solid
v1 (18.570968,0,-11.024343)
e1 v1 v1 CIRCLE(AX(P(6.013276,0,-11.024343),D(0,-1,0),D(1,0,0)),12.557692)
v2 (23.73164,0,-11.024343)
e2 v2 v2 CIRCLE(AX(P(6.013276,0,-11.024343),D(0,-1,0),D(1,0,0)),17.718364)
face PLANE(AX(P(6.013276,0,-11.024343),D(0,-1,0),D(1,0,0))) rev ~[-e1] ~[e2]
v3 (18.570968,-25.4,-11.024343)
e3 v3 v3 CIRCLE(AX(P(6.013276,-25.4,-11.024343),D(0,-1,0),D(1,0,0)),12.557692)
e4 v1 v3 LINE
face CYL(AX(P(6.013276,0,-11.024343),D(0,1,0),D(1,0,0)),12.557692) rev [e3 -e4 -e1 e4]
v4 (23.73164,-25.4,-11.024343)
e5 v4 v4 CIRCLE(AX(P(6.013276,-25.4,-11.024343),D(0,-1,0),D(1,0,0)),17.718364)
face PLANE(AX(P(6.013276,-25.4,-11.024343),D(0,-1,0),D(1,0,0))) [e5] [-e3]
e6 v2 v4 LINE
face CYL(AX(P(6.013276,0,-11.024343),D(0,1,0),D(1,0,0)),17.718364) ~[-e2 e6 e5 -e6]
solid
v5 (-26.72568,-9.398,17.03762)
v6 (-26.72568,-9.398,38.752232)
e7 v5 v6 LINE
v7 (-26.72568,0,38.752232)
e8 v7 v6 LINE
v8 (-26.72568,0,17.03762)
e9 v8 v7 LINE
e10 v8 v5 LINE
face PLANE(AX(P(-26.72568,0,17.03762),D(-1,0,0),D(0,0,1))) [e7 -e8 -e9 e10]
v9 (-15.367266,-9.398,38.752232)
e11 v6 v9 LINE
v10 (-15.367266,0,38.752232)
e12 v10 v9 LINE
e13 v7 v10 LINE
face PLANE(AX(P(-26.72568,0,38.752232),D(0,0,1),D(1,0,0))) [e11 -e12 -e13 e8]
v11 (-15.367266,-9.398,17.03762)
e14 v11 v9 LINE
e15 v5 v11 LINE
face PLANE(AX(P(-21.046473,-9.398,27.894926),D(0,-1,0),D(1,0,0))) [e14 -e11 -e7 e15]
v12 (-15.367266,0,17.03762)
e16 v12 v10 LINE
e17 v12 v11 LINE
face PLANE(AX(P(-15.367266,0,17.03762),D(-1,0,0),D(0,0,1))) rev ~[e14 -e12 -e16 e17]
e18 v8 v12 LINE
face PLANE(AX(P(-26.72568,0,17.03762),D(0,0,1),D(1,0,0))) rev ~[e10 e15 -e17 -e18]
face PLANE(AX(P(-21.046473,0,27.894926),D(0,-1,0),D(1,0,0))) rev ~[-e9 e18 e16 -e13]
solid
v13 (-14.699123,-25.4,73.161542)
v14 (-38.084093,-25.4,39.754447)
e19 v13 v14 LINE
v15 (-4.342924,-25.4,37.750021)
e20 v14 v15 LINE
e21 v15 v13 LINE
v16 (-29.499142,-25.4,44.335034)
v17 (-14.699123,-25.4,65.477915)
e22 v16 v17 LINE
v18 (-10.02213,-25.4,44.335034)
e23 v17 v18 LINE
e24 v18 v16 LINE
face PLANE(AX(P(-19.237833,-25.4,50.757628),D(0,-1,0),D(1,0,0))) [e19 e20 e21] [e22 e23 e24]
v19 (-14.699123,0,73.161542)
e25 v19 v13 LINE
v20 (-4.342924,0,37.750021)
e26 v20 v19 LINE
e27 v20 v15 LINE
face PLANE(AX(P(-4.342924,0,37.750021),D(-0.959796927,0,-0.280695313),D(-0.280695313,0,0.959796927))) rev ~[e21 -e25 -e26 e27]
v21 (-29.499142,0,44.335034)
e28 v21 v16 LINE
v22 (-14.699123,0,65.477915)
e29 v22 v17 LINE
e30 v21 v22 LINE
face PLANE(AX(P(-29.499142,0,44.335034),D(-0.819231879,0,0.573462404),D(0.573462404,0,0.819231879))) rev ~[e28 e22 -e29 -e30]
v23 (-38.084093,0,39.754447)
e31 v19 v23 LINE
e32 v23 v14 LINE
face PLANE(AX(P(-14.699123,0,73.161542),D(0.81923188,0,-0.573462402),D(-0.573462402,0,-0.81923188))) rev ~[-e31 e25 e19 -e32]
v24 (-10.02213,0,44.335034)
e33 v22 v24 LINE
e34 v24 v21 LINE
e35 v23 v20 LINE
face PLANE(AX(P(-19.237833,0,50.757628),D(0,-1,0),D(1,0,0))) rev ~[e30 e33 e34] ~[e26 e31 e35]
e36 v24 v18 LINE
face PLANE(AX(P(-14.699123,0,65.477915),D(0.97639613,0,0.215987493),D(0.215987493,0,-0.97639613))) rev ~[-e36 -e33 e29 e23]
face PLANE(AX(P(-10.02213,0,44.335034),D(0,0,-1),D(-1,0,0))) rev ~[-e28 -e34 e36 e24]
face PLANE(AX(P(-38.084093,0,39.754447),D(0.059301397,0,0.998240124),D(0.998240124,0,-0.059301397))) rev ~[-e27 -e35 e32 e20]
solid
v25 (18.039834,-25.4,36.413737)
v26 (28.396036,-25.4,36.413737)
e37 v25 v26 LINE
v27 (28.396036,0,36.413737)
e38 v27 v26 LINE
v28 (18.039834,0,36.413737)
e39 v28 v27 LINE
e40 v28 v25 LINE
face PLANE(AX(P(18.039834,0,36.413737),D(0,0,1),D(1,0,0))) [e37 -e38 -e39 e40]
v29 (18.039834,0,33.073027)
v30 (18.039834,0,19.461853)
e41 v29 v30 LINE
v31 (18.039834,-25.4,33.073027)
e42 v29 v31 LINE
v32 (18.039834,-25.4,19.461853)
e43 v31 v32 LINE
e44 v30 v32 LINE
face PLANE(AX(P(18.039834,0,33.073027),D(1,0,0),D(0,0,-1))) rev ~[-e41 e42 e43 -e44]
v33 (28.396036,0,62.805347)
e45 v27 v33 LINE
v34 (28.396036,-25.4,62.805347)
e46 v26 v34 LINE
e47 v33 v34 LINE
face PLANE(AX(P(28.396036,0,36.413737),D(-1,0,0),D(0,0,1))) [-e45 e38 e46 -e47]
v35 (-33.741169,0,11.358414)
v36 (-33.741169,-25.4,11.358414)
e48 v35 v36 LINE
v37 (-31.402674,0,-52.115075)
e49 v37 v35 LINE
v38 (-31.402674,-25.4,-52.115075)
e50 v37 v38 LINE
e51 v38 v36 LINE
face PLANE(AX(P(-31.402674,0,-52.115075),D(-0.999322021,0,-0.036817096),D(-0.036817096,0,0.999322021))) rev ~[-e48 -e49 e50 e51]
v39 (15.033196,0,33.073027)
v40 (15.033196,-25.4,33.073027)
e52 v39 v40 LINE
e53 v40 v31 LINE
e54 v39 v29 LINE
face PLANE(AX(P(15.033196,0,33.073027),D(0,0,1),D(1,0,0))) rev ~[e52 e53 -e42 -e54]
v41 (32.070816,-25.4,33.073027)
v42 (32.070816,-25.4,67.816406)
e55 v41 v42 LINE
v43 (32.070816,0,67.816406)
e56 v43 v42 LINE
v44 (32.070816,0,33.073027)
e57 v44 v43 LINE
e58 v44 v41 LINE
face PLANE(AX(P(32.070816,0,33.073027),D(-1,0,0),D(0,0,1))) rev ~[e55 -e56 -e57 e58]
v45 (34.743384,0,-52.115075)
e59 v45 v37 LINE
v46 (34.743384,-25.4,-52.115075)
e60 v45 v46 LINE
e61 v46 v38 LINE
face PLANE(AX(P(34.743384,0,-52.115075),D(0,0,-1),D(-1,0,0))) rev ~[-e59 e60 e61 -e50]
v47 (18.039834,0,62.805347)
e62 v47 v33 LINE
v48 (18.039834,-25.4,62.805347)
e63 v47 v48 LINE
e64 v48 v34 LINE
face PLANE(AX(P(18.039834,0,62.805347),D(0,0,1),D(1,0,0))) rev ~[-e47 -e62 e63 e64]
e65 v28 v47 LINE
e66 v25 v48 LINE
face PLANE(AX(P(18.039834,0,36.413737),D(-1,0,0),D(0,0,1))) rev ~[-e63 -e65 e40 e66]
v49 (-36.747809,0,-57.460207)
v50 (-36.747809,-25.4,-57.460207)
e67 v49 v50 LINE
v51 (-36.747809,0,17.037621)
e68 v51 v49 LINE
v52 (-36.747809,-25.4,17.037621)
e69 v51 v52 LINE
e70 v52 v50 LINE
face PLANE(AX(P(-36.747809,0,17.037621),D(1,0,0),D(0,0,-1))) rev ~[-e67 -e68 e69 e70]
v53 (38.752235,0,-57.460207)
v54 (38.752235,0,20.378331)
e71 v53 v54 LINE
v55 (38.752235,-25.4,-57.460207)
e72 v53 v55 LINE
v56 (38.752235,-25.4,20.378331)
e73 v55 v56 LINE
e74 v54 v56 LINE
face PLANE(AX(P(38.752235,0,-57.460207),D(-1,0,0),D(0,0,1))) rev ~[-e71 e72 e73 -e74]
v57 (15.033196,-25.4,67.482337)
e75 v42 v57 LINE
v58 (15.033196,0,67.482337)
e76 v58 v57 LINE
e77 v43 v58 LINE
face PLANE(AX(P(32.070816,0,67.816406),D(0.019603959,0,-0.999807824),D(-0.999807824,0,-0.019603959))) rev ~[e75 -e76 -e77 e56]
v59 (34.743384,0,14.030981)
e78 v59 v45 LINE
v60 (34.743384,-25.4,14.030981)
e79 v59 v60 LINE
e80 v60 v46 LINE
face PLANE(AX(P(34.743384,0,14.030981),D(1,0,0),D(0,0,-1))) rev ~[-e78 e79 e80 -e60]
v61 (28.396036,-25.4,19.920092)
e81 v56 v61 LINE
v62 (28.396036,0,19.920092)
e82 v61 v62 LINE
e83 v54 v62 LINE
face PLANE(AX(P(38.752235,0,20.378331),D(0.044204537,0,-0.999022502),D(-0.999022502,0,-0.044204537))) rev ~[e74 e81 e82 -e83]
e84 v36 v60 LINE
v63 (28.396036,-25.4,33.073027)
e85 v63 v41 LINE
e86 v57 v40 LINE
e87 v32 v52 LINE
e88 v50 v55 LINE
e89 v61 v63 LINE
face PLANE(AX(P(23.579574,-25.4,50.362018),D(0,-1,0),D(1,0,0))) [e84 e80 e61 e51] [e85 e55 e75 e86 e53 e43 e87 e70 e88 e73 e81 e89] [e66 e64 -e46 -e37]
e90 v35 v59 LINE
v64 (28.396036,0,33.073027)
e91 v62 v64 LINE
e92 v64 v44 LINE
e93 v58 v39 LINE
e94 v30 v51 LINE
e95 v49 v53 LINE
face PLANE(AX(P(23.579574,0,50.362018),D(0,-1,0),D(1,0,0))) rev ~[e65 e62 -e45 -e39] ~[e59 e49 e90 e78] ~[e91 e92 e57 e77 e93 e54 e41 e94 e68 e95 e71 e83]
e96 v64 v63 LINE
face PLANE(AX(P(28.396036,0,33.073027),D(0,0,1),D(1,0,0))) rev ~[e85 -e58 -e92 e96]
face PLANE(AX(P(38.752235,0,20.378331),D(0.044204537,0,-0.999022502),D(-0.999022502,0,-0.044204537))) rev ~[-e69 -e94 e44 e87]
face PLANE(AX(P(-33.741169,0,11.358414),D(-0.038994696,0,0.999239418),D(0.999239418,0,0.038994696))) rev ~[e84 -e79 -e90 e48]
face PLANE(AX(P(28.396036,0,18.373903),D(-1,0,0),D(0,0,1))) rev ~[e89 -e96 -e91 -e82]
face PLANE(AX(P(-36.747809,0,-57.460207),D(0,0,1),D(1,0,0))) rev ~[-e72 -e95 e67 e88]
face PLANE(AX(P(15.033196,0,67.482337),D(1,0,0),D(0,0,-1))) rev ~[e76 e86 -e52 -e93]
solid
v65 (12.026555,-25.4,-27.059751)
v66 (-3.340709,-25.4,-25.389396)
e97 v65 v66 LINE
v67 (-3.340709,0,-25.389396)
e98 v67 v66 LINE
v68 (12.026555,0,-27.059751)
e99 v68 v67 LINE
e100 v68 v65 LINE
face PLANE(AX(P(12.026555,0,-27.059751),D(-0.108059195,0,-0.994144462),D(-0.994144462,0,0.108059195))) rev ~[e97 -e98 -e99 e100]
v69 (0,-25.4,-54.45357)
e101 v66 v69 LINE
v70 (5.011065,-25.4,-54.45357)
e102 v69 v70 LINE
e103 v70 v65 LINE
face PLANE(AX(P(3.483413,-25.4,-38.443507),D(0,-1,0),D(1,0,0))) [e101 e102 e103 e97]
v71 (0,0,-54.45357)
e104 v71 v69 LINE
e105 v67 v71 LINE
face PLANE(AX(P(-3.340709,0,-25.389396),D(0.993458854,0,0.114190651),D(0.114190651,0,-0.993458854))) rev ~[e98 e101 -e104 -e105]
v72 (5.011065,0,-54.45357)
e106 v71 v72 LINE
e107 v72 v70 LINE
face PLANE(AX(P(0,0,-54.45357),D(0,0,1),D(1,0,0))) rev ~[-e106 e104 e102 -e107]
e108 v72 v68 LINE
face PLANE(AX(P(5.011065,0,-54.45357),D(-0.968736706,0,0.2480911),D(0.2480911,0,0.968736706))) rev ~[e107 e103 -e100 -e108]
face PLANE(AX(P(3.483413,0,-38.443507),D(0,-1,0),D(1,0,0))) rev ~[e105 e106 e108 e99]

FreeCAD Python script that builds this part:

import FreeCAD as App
import Part
import Sketcher
from FreeCAD import Vector
Q = App.Units.Quantity


def add_polygon(sketch, points):
    """Adds a closed chain of lines whose ends are joined by coincident constraints."""
    first, n = sketch.GeometryCount, len(points)
    for a, b in zip(points, points[1:] + points[:1]):
        sketch.addGeometry(Part.LineSegment(App.Vector(*a, 0), App.Vector(*b, 0)), False)
    for i in range(n):
        sketch.addConstraint(Sketcher.Constraint("Coincident", first + i, 2, first + (i + 1) % n, 1))

doc = App.newDocument("Part")
body = doc.addObject("PartDesign::Body", "Body")

# Sketch on XZ plane
sketch1 = body.newObject("Sketcher::SketchObject", "Sketch")
sketch1.AttachmentSupport = (doc.getObject("XZ_Plane"), [""])
sketch1.MapMode = "FlatFace"
add_polygon(sketch1, [(39, 20), (-37, 17), (-37, -57), (39, -57)])  # lines 0-3
add_polygon(sketch1, [(35, -52), (-31, -52), (-34, 11), (35, 14)])  # lines 4-7
sketch1.addConstraint([
    Sketcher.Constraint("Vertical", 1),
    Sketcher.Constraint("Horizontal", 2),
    Sketcher.Constraint("Vertical", 3),
    Sketcher.Constraint("Horizontal", 4),
    Sketcher.Constraint("Vertical", 7),
    Sketcher.Constraint("Equal", 4, 7),
    Sketcher.Constraint("DistanceY", 1, 2, 1, 1, 74.497828),
    Sketcher.Constraint("DistanceY", 3, 1, 3, 2, 77.838538),
    Sketcher.Constraint("Distance", 5, 63.516552),
    Sketcher.Constraint("Distance", 6, 68.536681),
    Sketcher.Constraint("DistanceX", 2, 1, 2, 2, 75.500044),
    Sketcher.Constraint("DistanceX", 4, 2, 4, 1, 66.146058),
    Sketcher.Constraint("DistanceX", 0, 2, -1, 1, 36.747809),
    Sketcher.Constraint("DistanceY", -1, 1, 0, 2, 17.037621),
    Sketcher.Constraint("DistanceX", 5, 2, -1, 1, 33.741169),
    Sketcher.Constraint("DistanceY", -1, 1, 6, 2, 14.030981),
])
pad1 = body.newObject("PartDesign::Pad", "Pad")
pad1.Profile = sketch1
pad1.Length = Q("1 in")

# Sketch on XZ plane
sketch2 = body.newObject("Sketcher::SketchObject", "Sketch001")
sketch2.AttachmentSupport = (doc.getObject("XZ_Plane"), [""])
sketch2.MapMode = "FlatFace"
add_polygon(sketch2, [(15, 67.5), (15, 33.1), (18, 33.1), (18, 17.7), (28.4, 18.4), (28.4, 33.1), (32.1, 33.1), (32.1, 67.8)])  # lines 0-7
add_polygon(sketch2, [(28.4, 36.4), (18, 36.4), (18, 62.8), (28.4, 62.8)])  # lines 8-11
sketch2.addConstraint([
    Sketcher.Constraint("Vertical", 0),
    Sketcher.Constraint("Horizontal", 1),
    Sketcher.Constraint("Vertical", 2),
    Sketcher.Constraint("Vertical", 4),
    Sketcher.Constraint("Horizontal", 5),
    Sketcher.Constraint("Vertical", 6),
    Sketcher.Constraint("Horizontal", 8),
    Sketcher.Constraint("Vertical", 9),
    Sketcher.Constraint("Horizontal", 10),
    Sketcher.Constraint("Vertical", 11),
    Sketcher.Constraint("Horizontal", 1, 2, 4, 2),
    Sketcher.Constraint("Vertical", 2, 2, 8, 2),
    Sketcher.Constraint("Vertical", 4, 2, 10, 2),
    Sketcher.Constraint("DistanceX", 5, 1, 5, 2, 3.67478),
    Sketcher.Constraint("DistanceY", 0, 2, 0, 1, 34.40931),
    Sketcher.Constraint("DistanceY", 6, 1, 6, 2, 34.743379),
    Sketcher.Constraint("DistanceY", 9, 1, 9, 2, 26.39161),
    Sketcher.Constraint("DistanceX", 1, 1, 1, 2, 3.006638),
    Sketcher.Constraint("DistanceX", 8, 2, 8, 1, 10.356202),
    Sketcher.Constraint("DistanceY", 2, 2, 2, 1, 15.367264),
    Sketcher.Constraint("DistanceY", 4, 1, 4, 2, 14.699124),
    Sketcher.Constraint("DistanceY", 1, 2, 8, 2, 3.34071),
    Sketcher.Constraint("DistanceX", -1, 1, 0, 2, 15.033196),
    Sketcher.Constraint("DistanceY", -1, 1, 0, 2, 33.073027),
])
pad2 = body.newObject("PartDesign::Pad", "Pad001")
pad2.Profile = sketch2
pad2.Length = Q("1 in")
body2 = doc.addObject("PartDesign::Body", "Body001")

# Sketch on XZ plane
sketch3 = body2.newObject("Sketcher::SketchObject", "Sketch002")
sketch3.AttachmentSupport = (doc.getObject("XZ_Plane001"), [""])
sketch3.MapMode = "FlatFace"
add_polygon(sketch3, [(-15, 73), (-38, 40), (-4, 38)])  # lines 0-2
add_polygon(sketch3, [(-10, 44), (-29, 44), (-15, 65)])  # lines 3-5
sketch3.addConstraint([
    Sketcher.Constraint("Horizontal", 3),
    Sketcher.Constraint("Parallel", 0, 4),
    Sketcher.Constraint("Vertical", 2, 2, 4, 2),
    Sketcher.Constraint("Distance", 5, 21.653999),
    Sketcher.Constraint("DistanceX", 3, 2, 3, 1, 19.477012),
    Sketcher.Constraint("DistanceX", 2, 2, 1, 2, 10.356199),
    Sketcher.Constraint("Distance", 0, 40.778558),
    Sketcher.Constraint("DistanceY", -1, 1, 1, 2, 37.750021),
    Sketcher.Constraint("DistanceY", -1, 1, 2, 2, 73.161542),
    Sketcher.Constraint("DistanceX", 3, 2, -1, 1, 29.499142),
    Sketcher.Constraint("DistanceX", 0, 2, 1, 2, 33.741169),
    Sketcher.Constraint("DistanceY", -1, 1, 3, 2, 44.335034),
])
pad3 = body2.newObject("PartDesign::Pad", "Pad002")
pad3.Profile = sketch3
pad3.Length = Q("1 in")
body3 = doc.addObject("PartDesign::Body", "Body002")

# Sketch on XZ plane
sketch4 = body3.newObject("Sketcher::SketchObject", "Sketch003")
sketch4.AttachmentSupport = (doc.getObject("XZ_Plane002"), [""])
sketch4.MapMode = "FlatFace"
add_polygon(sketch4, [(-27, 39), (-27, 17), (-15, 17), (-15, 39)])  # lines 0-3
sketch4.addConstraint([
    Sketcher.Constraint("Vertical", 0),
    Sketcher.Constraint("Horizontal", 1),
    Sketcher.Constraint("Vertical", 2),
    Sketcher.Constraint("Horizontal", 3),
    Sketcher.Constraint("DistanceY", 0, 2, 0, 1, 21.714611),
    Sketcher.Constraint("DistanceX", 1, 1, 1, 2, 11.358415),
    Sketcher.Constraint("DistanceX", 0, 2, -1, 1, 26.72568),
    Sketcher.Constraint("DistanceY", -1, 1, 0, 2, 17.03762),
])
pad4 = body3.newObject("PartDesign::Pad", "Pad003")
pad4.Profile = sketch4
pad4.Length = Q("0.37 in")
body4 = doc.addObject("PartDesign::Body", "Body003")

# Sketch on XZ plane
sketch5 = body4.newObject("Sketcher::SketchObject", "Sketch004")
sketch5.AttachmentSupport = (doc.getObject("XZ_Plane003"), [""])
sketch5.MapMode = "FlatFace"
sketch5.addGeometry([
    Part.Circle(Vector(6, -11, 0), Vector(0, 0, 1), 18),
    Part.Circle(Vector(6, -11, 0), Vector(0, 0, 1), 13),
], False)
sketch5.addConstraint([
    Sketcher.Constraint("Coincident", 1, 3, 0, 3),
    Sketcher.Constraint("Diameter", 0, 35.436728),
    Sketcher.Constraint("Diameter", 1, 25.115384),
    Sketcher.Constraint("DistanceX", -1, 1, 0, 3, 6.013276),
    Sketcher.Constraint("DistanceY", 0, 3, -1, 1, 11.024343),
])
pad5 = body4.newObject("PartDesign::Pad", "Pad004")
pad5.Profile = sketch5
pad5.Length = Q("1 in")
body5 = doc.addObject("PartDesign::Body", "Body004")

# Sketch on XZ plane
sketch6 = body5.newObject("Sketcher::SketchObject", "Sketch005")
sketch6.AttachmentSupport = (doc.getObject("XZ_Plane004"), [""])
sketch6.MapMode = "FlatFace"
add_polygon(sketch6, [(12, -27), (-3, -25), (0, -54), (5, -54)])  # lines 0-3
sketch6.addConstraint([
    Sketcher.Constraint("Horizontal", 2),
    Sketcher.Constraint("PointOnObject", 1, 2, -2),
    Sketcher.Constraint("Distance", 1, 29.255539),
    Sketcher.Constraint("Distance", 3, 28.277879),
    Sketcher.Constraint("DistanceX", 2, 1, 2, 2, 5.011065),
    Sketcher.Constraint("DistanceX", 0, 2, -1, 1, 3.340709),
    Sketcher.Constraint("DistanceY", 1, 2, -1, 1, 54.45357),
    Sketcher.Constraint("DistanceY", 3, 2, -1, 1, 27.059751),
])
pad6 = body5.newObject("PartDesign::Pad", "Pad005")
pad6.Profile = sketch6
pad6.Length = Q("1 in")

doc.recompute()
